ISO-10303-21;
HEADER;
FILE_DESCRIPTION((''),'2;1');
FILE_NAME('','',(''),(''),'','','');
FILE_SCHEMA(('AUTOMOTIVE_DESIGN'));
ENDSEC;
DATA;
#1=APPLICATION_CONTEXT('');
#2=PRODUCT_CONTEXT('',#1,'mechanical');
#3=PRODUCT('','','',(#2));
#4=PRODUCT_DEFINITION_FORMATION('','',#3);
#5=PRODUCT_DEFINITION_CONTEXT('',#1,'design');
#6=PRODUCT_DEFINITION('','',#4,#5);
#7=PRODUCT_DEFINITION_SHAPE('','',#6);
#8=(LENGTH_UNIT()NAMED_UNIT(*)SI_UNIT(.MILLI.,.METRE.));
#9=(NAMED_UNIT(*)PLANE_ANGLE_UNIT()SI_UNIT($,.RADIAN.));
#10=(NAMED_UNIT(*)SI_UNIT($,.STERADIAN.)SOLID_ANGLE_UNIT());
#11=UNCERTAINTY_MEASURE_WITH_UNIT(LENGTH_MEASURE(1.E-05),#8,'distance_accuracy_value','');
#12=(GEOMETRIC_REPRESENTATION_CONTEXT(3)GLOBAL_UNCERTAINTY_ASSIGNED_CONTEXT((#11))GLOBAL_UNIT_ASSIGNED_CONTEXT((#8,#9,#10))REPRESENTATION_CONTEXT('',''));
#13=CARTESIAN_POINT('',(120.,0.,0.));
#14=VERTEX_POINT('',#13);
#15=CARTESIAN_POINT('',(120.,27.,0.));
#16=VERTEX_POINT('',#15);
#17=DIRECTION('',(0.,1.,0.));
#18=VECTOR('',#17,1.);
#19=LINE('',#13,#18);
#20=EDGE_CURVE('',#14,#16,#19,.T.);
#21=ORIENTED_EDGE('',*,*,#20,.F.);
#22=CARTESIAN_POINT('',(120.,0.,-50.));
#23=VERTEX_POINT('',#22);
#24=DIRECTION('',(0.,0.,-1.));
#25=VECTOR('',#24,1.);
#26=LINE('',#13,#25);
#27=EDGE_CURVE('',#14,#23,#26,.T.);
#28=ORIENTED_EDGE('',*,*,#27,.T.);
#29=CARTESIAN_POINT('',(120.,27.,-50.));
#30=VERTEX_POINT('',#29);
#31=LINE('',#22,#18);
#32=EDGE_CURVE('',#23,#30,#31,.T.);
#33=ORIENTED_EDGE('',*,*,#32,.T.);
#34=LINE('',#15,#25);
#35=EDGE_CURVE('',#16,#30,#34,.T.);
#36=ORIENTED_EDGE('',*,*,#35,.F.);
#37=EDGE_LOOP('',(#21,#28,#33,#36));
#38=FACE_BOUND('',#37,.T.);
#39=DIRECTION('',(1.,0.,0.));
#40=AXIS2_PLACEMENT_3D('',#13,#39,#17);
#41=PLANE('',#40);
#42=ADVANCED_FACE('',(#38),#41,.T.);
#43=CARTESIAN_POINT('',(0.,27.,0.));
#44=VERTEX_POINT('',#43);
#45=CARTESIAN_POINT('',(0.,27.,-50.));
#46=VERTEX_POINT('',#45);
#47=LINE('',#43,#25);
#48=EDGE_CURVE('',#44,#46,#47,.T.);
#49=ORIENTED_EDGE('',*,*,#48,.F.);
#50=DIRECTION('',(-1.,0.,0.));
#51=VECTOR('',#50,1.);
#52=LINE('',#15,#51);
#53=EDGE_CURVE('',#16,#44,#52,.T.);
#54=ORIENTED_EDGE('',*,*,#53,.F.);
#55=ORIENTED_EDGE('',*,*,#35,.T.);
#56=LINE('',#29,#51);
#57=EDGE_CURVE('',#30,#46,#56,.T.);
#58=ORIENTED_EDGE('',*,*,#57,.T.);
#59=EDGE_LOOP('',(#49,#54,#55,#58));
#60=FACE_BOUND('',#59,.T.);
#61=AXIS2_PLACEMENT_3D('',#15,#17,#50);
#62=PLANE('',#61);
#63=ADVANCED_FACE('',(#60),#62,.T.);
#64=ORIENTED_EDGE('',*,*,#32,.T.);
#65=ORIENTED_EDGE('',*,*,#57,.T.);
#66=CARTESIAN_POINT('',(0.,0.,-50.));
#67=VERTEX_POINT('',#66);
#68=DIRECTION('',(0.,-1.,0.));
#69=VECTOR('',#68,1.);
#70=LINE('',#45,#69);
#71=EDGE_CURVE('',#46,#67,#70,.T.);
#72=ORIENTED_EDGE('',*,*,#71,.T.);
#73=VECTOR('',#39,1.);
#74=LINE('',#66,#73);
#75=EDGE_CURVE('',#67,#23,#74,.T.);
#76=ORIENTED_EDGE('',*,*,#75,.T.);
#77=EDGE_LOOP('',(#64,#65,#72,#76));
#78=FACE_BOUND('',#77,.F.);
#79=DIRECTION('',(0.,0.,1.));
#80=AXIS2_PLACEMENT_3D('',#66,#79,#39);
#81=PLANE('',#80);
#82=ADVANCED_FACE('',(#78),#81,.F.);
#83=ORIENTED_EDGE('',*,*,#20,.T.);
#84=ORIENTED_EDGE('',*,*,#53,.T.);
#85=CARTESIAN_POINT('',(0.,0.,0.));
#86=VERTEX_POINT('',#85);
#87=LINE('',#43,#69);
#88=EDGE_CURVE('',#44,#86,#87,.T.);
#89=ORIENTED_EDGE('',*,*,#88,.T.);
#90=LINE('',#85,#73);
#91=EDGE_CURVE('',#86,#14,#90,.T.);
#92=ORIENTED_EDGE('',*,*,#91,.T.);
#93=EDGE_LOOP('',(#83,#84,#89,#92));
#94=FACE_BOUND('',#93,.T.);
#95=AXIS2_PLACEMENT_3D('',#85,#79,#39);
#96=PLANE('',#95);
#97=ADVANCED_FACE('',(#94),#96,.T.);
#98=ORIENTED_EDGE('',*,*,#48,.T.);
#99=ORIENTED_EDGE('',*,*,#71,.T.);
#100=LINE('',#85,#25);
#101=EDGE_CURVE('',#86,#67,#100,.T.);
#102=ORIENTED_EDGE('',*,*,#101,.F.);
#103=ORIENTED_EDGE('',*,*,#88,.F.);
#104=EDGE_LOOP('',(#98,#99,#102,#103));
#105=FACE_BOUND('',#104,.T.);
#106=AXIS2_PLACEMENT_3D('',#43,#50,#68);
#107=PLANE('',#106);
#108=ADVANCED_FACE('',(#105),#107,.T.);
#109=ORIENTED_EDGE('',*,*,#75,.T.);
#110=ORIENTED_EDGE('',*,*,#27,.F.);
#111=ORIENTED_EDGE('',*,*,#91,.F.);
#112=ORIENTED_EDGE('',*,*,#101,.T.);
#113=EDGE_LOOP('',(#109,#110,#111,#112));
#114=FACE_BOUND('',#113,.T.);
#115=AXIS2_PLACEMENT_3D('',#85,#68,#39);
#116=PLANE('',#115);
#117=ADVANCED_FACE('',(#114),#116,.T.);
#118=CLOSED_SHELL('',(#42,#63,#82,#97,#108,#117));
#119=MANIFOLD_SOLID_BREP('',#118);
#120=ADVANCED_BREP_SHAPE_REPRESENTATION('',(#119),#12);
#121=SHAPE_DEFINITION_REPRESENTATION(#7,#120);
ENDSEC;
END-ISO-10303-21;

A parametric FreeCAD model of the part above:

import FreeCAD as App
import Part
import Sketcher
from FreeCAD import Vector
Q = App.Units.Quantity


def add_polygon(sketch, points):
    """Adds a closed chain of lines whose ends are joined by coincident constraints."""
    first, n = sketch.GeometryCount, len(points)
    for a, b in zip(points, points[1:] + points[:1]):
        sketch.addGeometry(Part.LineSegment(App.Vector(*a, 0), App.Vector(*b, 0)), False)
    for i in range(n):
        sketch.addConstraint(Sketcher.Constraint("Coincident", first + i, 2, first + (i + 1) % n, 1))

doc = App.newDocument("Part")
params = doc.addObject("Spreadsheet::Sheet", "Params")
for row, (alias, value) in enumerate([
    ("sketch1_height", "1.063 in"),
    ("pad1_length", "1.9685039 in"),
], start=1):
    params.set(f"A{row}", alias)
    params.set(f"B{row}", "=" + value)
    params.setAlias(f"B{row}", alias)

body = doc.addObject("PartDesign::Body", "Body")

# Sketch on XY plane
sketch1 = body.newObject("Sketcher::SketchObject", "Sketch")
sketch1.AttachmentSupport = (doc.getObject("XY_Plane"), [""])
sketch1.MapMode = "FlatFace"
add_polygon(sketch1, [(0, 27), (0, 0), (120, 0), (120, 27)])  # lines 0-3
sketch1.addConstraint([
    Sketcher.Constraint("Vertical", 0),
    Sketcher.Constraint("Horizontal", 1),
    Sketcher.Constraint("Vertical", 2),
    Sketcher.Constraint("Horizontal", 3),
    Sketcher.Constraint("Coincident", 0, 2, -1, 1),
    Sketcher.Constraint("DistanceY", 0, 2, 0, 1, Q("1.063 in")),
    Sketcher.Constraint("DistanceX", 1, 1, 1, 2, Q("4.7244 in")),
])
sketch1.setExpression("Constraints[9]", "Params.sketch1_height")
pad1 = body.newObject("PartDesign::Pad", "Pad")
pad1.Profile = sketch1
pad1.setExpression("Length", "Params.pad1_length")
pad1.Reversed = True

doc.recompute()
